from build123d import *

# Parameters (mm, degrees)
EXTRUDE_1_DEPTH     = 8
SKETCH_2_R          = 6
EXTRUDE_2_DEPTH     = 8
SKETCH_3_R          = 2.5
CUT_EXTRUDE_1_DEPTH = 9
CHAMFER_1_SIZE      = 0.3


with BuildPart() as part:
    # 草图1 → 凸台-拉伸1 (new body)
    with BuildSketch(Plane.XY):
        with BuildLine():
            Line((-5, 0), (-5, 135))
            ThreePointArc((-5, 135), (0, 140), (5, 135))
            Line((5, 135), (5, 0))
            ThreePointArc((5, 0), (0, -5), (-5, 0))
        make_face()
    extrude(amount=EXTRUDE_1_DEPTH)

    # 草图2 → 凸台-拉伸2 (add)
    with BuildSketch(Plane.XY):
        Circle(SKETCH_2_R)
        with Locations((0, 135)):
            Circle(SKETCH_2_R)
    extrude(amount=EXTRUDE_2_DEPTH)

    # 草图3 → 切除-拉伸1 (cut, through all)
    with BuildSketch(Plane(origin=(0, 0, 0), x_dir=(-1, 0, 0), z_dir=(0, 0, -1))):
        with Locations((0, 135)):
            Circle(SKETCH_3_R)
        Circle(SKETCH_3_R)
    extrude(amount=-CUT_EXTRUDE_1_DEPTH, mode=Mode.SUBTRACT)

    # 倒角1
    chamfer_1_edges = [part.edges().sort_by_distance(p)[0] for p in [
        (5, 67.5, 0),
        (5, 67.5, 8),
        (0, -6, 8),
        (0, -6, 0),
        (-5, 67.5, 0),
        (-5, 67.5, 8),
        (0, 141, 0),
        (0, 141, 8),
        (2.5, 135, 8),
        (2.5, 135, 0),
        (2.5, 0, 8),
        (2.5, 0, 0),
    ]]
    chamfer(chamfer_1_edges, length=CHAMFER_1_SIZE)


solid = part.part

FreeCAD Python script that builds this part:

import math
import FreeCAD as App
import Part
import Sketcher
from FreeCAD import Vector


def edges_at(feature, points):
    """Names of the edges that pass closest to the given points."""
    edges = feature.Shape.Edges
    near = lambda p: min(range(len(edges)), key=lambda i: edges[i].distToShape(Part.Vertex(*p))[0])
    return sorted({f"Edge{near(p) + 1}" for p in points})

doc = App.newDocument("Part")
body = doc.addObject("PartDesign::Body", "Body")

# Sketch on XY plane
sketch1 = body.newObject("Sketcher::SketchObject", "Sketch")
sketch1.AttachmentSupport = (doc.getObject("XY_Plane"), [""])
sketch1.MapMode = "FlatFace"
sketch1.addGeometry([
    Part.LineSegment(Vector(-5, 135, 0), Vector(-5, 0, 0)),
    Part.ArcOfCircle(Part.Circle(Vector(0, 0, 0), Vector(0, 0, 1), 5), math.radians(180), math.radians(360)),
    Part.LineSegment(Vector(5, 0, 0), Vector(5, 135, 0)),
    Part.ArcOfCircle(Part.Circle(Vector(0, 135, 0), Vector(0, 0, 1), 5), math.radians(0), math.radians(180)),
], False)
sketch1.addConstraint([
    Sketcher.Constraint("Tangent", 0, 2, 1, 1),
    Sketcher.Constraint("Tangent", 1, 2, 2, 1),
    Sketcher.Constraint("Tangent", 2, 2, 3, 1),
    Sketcher.Constraint("Tangent", 3, 2, 0, 1),
    Sketcher.Constraint("Vertical", 0),
    Sketcher.Constraint("Vertical", 2),
    Sketcher.Constraint("Coincident", 1, 3, -1, 1),
    Sketcher.Constraint("Radius", 1, 5.0),
    Sketcher.Constraint("DistanceY", 0, 2, 0, 1, 135.0),
])
pad1 = body.newObject("PartDesign::Pad", "Pad")
pad1.Profile = sketch1
pad1.Length = 8

# Sketch on XY plane
sketch2 = body.newObject("Sketcher::SketchObject", "Sketch001")
sketch2.AttachmentSupport = (doc.getObject("XY_Plane"), [""])
sketch2.MapMode = "FlatFace"
sketch2.addGeometry([
    Part.Circle(Vector(0, 0, 0), Vector(0, 0, 1), 6),
    Part.Circle(Vector(0, 135, 0), Vector(0, 0, 1), 6),
], False)
sketch2.addConstraint([
    Sketcher.Constraint("Coincident", 0, 3, -1, 1),
    Sketcher.Constraint("Equal", 0, 1),
    Sketcher.Constraint("PointOnObject", 1, 3, -2),
    Sketcher.Constraint("Diameter", 0, 12.0),
    Sketcher.Constraint("DistanceY", -1, 1, 1, 3, 135.0),
])
pad2 = body.newObject("PartDesign::Pad", "Pad001")
pad2.Profile = sketch2
pad2.Length = 8

# Sketch on XY plane
sketch3 = body.newObject("Sketcher::SketchObject", "Sketch002")
sketch3.AttachmentSupport = (doc.getObject("XY_Plane"), [""])
sketch3.MapMode = "FlatFace"
sketch3.addGeometry([
    Part.Circle(Vector(0, 135, 0), Vector(0, 0, 1), 2.5),
    Part.Circle(Vector(0, 0, 0), Vector(0, 0, 1), 2.5),
], False)
sketch3.addConstraint([
    Sketcher.Constraint("Coincident", 1, 3, -1, 1),
    Sketcher.Constraint("Equal", 0, 1),
    Sketcher.Constraint("PointOnObject", 0, 3, -2),
    Sketcher.Constraint("Diameter", 0, 5.0),
    Sketcher.Constraint("DistanceY", -1, 1, 0, 3, 135.0),
])
pocket1 = body.newObject("PartDesign::Pocket", "Pocket")
pocket1.Profile = sketch3
pocket1.Type = "ThroughAll"
pocket1.Reversed = True
doc.recompute()

chamfer = body.newObject("PartDesign::Chamfer", "Chamfer")
chamfer.Base = (pocket1, edges_at(pocket1, [
    (5, 67.5, 0),
    (5, 67.5, 8),
    (0, -6, 8),
    (0, -6, 0),
    (-5, 67.5, 0),
    (-5, 67.5, 8),
    (0, 141, 0),
    (0, 141, 8),
    (2.5, 135, 8),
    (2.5, 135, 0),
    (2.5, 0, 8),
    (2.5, 0, 0),
]))
chamfer.Size = 0.3

doc.recompute()
